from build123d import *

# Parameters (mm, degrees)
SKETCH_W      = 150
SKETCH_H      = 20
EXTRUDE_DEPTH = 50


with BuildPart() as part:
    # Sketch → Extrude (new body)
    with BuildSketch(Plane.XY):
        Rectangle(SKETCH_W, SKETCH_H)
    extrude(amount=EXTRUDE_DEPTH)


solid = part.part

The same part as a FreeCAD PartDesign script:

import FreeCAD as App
import Part
import Sketcher
Q = App.Units.Quantity


def add_polygon(sketch, points):
    """Adds a closed chain of lines whose ends are joined by coincident constraints."""
    first, n = sketch.GeometryCount, len(points)
    for a, b in zip(points, points[1:] + points[:1]):
        sketch.addGeometry(Part.LineSegment(App.Vector(*a, 0), App.Vector(*b, 0)), False)
    for i in range(n):
        sketch.addConstraint(Sketcher.Constraint("Coincident", first + i, 2, first + (i + 1) % n, 1))

doc = App.newDocument("Part")
body = doc.addObject("PartDesign::Body", "Body")

# Sketch on XY plane
sketch1 = body.newObject("Sketcher::SketchObject", "Sketch")
sketch1.AttachmentSupport = (doc.getObject("XY_Plane"), [""])
sketch1.MapMode = "FlatFace"
add_polygon(sketch1, [(-75, 10), (-75, -10), (75, -10), (75, 10)])  # lines 0-3
sketch1.addConstraint(Sketcher.Constraint("Vertical", 0))
sketch1.addConstraint(Sketcher.Constraint("Horizontal", 1))
sketch1.addConstraint(Sketcher.Constraint("Vertical", 2))
sketch1.addConstraint(Sketcher.Constraint("Horizontal", 3))
sketch1.addConstraint(Sketcher.Constraint("Symmetric", 0, 2, 2, 2, -1, 1))
sketch1.addConstraint(Sketcher.Constraint("DistanceX", 1, 1, 1, 2, Q("150 mm")))
sketch1.addConstraint(Sketcher.Constraint("DistanceY", 0, 2, 0, 1, Q("20 mm")))
pad1 = body.newObject("PartDesign::Pad", "Pad")
pad1.Profile = sketch1
pad1.Length = 50

doc.recompute()
